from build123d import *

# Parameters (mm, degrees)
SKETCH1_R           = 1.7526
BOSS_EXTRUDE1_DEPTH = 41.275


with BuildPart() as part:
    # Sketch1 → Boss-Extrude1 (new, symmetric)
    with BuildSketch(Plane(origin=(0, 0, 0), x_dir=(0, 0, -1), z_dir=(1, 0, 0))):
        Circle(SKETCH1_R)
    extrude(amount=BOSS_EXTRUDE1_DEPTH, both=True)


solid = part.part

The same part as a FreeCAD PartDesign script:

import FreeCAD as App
import Part
import Sketcher
from FreeCAD import Vector
Q = App.Units.Quantity

doc = App.newDocument("Part")
body = doc.addObject("PartDesign::Body", "Body")

# Sketch on YZ plane
sketch1 = body.newObject("Sketcher::SketchObject", "Sketch")
sketch1.AttachmentSupport = (doc.getObject("YZ_Plane"), [""])
sketch1.MapMode = "FlatFace"
sketch1.addGeometry(Part.Circle(Vector(0, 0, 0), Vector(0, 0, 1), 1.8), False)
sketch1.addConstraint([
    Sketcher.Constraint("Coincident", 0, 3, -1, 1),
    Sketcher.Constraint("Diameter", 0, Q("0.138 in")),
])
pad1 = body.newObject("PartDesign::Pad", "Pad")
pad1.Profile = sketch1
pad1.Length = Q("3.25 in")
pad1.Midplane = True

doc.recompute()
